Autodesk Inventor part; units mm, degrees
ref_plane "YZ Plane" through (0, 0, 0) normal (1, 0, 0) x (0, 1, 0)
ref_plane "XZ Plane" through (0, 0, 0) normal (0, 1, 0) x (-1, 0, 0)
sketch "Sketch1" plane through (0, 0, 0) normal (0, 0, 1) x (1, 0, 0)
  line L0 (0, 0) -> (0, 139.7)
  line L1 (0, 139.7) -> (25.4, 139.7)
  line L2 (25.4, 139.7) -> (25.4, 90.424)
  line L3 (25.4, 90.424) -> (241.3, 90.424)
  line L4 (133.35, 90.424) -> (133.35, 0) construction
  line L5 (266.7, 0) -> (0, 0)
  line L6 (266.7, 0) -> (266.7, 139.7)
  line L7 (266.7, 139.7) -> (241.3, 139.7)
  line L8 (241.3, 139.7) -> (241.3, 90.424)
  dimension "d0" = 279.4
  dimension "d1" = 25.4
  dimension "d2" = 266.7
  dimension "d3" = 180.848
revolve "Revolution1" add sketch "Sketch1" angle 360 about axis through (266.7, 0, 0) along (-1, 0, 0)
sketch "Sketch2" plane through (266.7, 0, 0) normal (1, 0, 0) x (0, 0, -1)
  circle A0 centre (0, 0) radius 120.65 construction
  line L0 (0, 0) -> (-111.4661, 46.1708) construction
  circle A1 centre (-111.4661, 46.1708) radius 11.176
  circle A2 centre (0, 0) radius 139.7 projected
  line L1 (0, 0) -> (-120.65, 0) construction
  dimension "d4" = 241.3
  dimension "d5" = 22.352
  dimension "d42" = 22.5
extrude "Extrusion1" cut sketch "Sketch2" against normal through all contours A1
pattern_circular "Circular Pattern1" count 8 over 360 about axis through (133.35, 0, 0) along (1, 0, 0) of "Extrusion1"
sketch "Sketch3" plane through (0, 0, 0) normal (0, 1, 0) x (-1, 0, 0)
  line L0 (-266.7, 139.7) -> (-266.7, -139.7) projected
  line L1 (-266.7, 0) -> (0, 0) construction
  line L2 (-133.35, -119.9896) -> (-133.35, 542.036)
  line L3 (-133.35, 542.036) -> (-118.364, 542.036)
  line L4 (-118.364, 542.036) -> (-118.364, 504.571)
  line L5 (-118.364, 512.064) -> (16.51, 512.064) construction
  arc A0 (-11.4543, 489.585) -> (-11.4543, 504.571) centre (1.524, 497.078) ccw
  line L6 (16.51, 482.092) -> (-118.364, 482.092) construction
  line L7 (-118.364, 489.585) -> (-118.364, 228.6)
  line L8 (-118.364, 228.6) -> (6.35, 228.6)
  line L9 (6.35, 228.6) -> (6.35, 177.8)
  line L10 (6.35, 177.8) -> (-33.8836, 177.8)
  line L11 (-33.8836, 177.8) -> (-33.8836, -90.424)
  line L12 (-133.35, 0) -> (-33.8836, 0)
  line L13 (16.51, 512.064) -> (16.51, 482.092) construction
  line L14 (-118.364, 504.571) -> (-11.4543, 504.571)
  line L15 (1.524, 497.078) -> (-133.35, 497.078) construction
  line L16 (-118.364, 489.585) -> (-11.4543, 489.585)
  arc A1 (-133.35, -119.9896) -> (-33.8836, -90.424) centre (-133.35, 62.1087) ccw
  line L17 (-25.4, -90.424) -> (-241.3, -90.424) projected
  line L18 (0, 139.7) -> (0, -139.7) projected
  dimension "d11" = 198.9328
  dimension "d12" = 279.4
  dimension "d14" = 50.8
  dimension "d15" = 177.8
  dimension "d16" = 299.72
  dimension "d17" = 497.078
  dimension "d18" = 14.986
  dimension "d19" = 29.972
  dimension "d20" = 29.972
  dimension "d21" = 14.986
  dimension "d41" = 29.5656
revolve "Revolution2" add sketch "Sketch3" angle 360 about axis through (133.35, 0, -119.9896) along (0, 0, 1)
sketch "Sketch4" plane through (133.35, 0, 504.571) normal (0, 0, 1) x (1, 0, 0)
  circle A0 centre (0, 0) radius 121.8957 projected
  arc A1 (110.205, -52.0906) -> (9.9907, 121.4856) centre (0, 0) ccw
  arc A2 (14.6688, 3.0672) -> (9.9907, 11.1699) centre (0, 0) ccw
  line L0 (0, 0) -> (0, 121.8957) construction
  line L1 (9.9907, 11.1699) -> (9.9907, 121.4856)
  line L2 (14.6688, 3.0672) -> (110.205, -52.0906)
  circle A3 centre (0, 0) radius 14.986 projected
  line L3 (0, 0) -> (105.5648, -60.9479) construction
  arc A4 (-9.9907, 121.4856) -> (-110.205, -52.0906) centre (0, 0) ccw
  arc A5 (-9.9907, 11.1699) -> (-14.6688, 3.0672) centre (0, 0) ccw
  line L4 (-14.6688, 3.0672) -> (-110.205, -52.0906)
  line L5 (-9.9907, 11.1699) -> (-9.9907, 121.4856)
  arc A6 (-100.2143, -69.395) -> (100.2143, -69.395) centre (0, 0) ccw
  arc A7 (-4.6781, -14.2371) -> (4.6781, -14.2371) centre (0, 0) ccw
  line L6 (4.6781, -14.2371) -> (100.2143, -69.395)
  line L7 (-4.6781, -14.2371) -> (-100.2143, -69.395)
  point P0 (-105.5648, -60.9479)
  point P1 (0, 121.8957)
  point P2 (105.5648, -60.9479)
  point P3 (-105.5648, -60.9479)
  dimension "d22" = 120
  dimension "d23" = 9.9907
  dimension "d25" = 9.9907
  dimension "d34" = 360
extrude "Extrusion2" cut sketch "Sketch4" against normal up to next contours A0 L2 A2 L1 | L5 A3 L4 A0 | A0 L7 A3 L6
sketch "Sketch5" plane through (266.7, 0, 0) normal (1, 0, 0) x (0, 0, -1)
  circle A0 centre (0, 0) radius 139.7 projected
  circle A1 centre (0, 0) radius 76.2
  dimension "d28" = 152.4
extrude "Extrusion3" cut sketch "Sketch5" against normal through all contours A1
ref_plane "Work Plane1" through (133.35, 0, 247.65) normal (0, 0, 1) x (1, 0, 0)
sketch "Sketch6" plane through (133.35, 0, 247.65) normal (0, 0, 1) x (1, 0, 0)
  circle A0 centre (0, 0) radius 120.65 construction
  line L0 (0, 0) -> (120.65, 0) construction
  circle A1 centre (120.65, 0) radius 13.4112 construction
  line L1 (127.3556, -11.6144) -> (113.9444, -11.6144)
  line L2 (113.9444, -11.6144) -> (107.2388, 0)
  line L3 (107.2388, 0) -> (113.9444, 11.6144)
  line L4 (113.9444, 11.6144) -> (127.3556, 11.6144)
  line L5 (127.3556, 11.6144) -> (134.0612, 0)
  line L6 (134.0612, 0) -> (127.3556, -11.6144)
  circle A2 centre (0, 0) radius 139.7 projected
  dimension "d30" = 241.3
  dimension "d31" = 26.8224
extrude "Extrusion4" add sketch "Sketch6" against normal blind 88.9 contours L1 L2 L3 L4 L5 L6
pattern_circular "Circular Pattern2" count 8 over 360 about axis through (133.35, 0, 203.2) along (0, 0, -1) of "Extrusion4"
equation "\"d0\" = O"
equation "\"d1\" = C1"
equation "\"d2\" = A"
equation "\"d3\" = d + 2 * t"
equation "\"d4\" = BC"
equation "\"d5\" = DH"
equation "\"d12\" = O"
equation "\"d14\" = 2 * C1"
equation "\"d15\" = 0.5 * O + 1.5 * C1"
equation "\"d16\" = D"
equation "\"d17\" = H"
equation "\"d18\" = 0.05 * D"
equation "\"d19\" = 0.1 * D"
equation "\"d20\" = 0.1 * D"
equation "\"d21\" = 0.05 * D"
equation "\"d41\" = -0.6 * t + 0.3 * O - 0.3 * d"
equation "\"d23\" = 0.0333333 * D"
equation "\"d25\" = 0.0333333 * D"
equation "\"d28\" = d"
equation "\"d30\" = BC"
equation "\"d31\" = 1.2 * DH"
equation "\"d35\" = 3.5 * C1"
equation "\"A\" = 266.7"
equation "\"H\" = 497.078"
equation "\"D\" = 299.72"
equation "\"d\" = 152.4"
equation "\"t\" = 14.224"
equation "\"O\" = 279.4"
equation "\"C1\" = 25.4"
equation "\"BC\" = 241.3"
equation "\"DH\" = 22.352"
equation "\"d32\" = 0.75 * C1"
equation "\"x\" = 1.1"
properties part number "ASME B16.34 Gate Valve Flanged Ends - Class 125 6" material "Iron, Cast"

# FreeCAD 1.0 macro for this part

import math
import FreeCAD as App
import Part
import Sketcher
from FreeCAD import Vector
Q = App.Units.Quantity


def add_polygon(sketch, points):
    """Adds a closed chain of lines whose ends are joined by coincident constraints."""
    first, n = sketch.GeometryCount, len(points)
    for a, b in zip(points, points[1:] + points[:1]):
        sketch.addGeometry(Part.LineSegment(App.Vector(*a, 0), App.Vector(*b, 0)), False)
    for i in range(n):
        sketch.addConstraint(Sketcher.Constraint("Coincident", first + i, 2, first + (i + 1) % n, 1))

doc = App.newDocument("Part")
body = doc.addObject("PartDesign::Body", "Body")

sketch1 = body.newObject("Sketcher::SketchObject", "Sketch")
sketch1.AttachmentSupport = (doc.getObject("XY_Plane"), [""])
sketch1.MapMode = "FlatFace"
add_polygon(sketch1, [(0, 140), (0, 0), (267, 0), (267, 140), (241, 140), (241, 90), (25, 90), (25, 140)])
sketch1.addConstraint([
    Sketcher.Constraint("Vertical", 0),
    Sketcher.Constraint("Horizontal", 1),
    Sketcher.Constraint("Vertical", 2),
    Sketcher.Constraint("Horizontal", 3),
    Sketcher.Constraint("Vertical", 4),
    Sketcher.Constraint("Horizontal", 5),
    Sketcher.Constraint("Vertical", 6),
    Sketcher.Constraint("Horizontal", 7),
    Sketcher.Constraint("Coincident", 0, 2, -1, 1),
    Sketcher.Constraint("Horizontal", 3, 2, 6, 2),
    Sketcher.Constraint("Equal", 3, 7),
    Sketcher.Constraint("DistanceX", 3, 2, 3, 1, Q("1 in")),
    Sketcher.Constraint("DistanceX", 1, 1, 1, 2, Q("10.5 in")),
    Sketcher.Constraint("DistanceY", 0, 2, 0, 1, Q("5.5 in")),
    Sketcher.Constraint("DistanceY", 4, 2, 4, 1, Q("1.94 in")),
])
revolution = body.newObject("PartDesign::Revolution", "Revolution")
revolution.Profile = sketch1
revolution.ReferenceAxis = (sketch1, ["H_Axis"])
revolution.Angle = 360

sketch2 = body.newObject("Sketcher::SketchObject", "Sketch001")
sketch2.AttachmentSupport = (doc.getObject("YZ_Plane"), [""])
sketch2.MapMode = "FlatFace"
sketch2.AttachmentOffset = App.Placement(Vector(0, 0, 10.5 * 25.4), App.Rotation())
sketch2.addGeometry(Part.Circle(Vector(46, 111, 0), Vector(0, 0, 1), 11), False)
sketch2.addConstraint([
    Sketcher.Constraint("Diameter", 0, Q("0.88 in")),
    Sketcher.Constraint("DistanceX", -1, 1, 0, 3, Q("46.1708 mm")),
    Sketcher.Constraint("DistanceY", -1, 1, 0, 3, Q("111.466 mm")),
])
pocket1 = body.newObject("PartDesign::Pocket", "Pocket")
pocket1.Profile = sketch2
pocket1.Type = "ThroughAll"
doc.recompute()

polarpattern = body.newObject("PartDesign::PolarPattern", "PolarPattern")
polarpattern.Originals = [pocket1]
polarpattern.Axis = (doc.getObject("X_Axis"), [""])
polarpattern.Angle = 360
polarpattern.Occurrences = 8
body.Tip = polarpattern

sketch3 = body.newObject("Sketcher::SketchObject", "Sketch002")
sketch3.AttachmentSupport = (doc.getObject("XZ_Plane"), [""])
sketch3.MapMode = "FlatFace"
sketch3.addGeometry([
    Part.LineSegment(Vector(34, -90, 0), Vector(34, 178, 0)),
    Part.LineSegment(Vector(34, 178, 0), Vector(-6, 178, 0)),
    Part.LineSegment(Vector(-6, 178, 0), Vector(-6, 229, 0)),
    Part.LineSegment(Vector(-6, 229, 0), Vector(118, 229, 0)),
    Part.LineSegment(Vector(118, 229, 0), Vector(118, 490, 0)),
    Part.LineSegment(Vector(118, 490, 0), Vector(11, 490, 0)),
    Part.ArcOfCircle(Part.Circle(Vector(-2, 497, 0), Vector(0, 0, 1), 15), math.radians(30), math.radians(330)),
    Part.LineSegment(Vector(11, 505, 0), Vector(118, 505, 0)),
    Part.LineSegment(Vector(118, 505, 0), Vector(118, 542, 0)),
    Part.LineSegment(Vector(118, 542, 0), Vector(133, 542, 0)),
    Part.LineSegment(Vector(133, 542, 0), Vector(133, -120, 0)),
    Part.ArcOfCircle(Part.Circle(Vector(133, 62, 0), Vector(0, 0, 1), 182), math.radians(-123), math.radians(-90)),
], False)
sketch3.addGeometry(Part.LineSegment(Vector(133, -120, 0), Vector(133, 542, 0)), True)
sketch3.addConstraint([
    Sketcher.Constraint("Coincident", 0, 2, 1, 1),
    Sketcher.Constraint("Coincident", 1, 2, 2, 1),
    Sketcher.Constraint("Coincident", 2, 2, 3, 1),
    Sketcher.Constraint("Coincident", 3, 2, 4, 1),
    Sketcher.Constraint("Coincident", 4, 2, 5, 1),
    Sketcher.Constraint("Coincident", 5, 2, 6, 2),
    Sketcher.Constraint("Coincident", 6, 1, 7, 1),
    Sketcher.Constraint("Coincident", 7, 2, 8, 1),
    Sketcher.Constraint("Coincident", 8, 2, 9, 1),
    Sketcher.Constraint("Coincident", 9, 2, 10, 1),
    Sketcher.Constraint("Coincident", 10, 2, 11, 2),
    Sketcher.Constraint("Coincident", 11, 1, 0, 1),
    Sketcher.Constraint("Vertical", 0),
    Sketcher.Constraint("Horizontal", 1),
    Sketcher.Constraint("Vertical", 2),
    Sketcher.Constraint("Horizontal", 3),
    Sketcher.Constraint("Vertical", 4),
    Sketcher.Constraint("Horizontal", 5),
    Sketcher.Constraint("Horizontal", 7),
    Sketcher.Constraint("Vertical", 8),
    Sketcher.Constraint("Horizontal", 9),
    Sketcher.Constraint("Vertical", 10),
    Sketcher.Constraint("Vertical", 12),
    Sketcher.Constraint("Coincident", 12, 1, 10, 2),
    Sketcher.Constraint("Horizontal", 8, 2, 12, 2),
    Sketcher.Constraint("Vertical", 5, 2, 6, 1),
    Sketcher.Constraint("Vertical", 4, 2, 7, 2),
    Sketcher.Constraint("Vertical", 11, 3, 9, 2),
    Sketcher.Constraint("DistanceY", 2, 1, 2, 2, Q("2 in")),
    Sketcher.Constraint("Radius", 6, Q("0.59 in")),
    Sketcher.Constraint("DistanceY", -1, 1, 0, 2, Q("7 in")),
    Sketcher.Constraint("DistanceX", 9, 1, 9, 2, Q("0.59 in")),
    Sketcher.Constraint("DistanceY", -1, 1, 6, 3, Q("19.57 in")),
    Sketcher.Constraint("DistanceY", 5, 2, 6, 1, Q("0.59 in")),
    Sketcher.Constraint("DistanceY", 10, 2, 11, 1, Q("1.164 in")),
    Sketcher.Constraint("DistanceX", 3, 1, 3, 2, Q("4.91 in")),
    Sketcher.Constraint("DistanceY", 0, 1, 0, 2, Q("10.56 in")),
    Sketcher.Constraint("DistanceX", 1, 2, 1, 1, Q("1.584 in")),
    Sketcher.Constraint("DistanceY", 8, 1, 8, 2, Q("1.475 in")),
    Sketcher.Constraint("DistanceX", 6, 3, -1, 1, Q("0.06 in")),
    Sketcher.Constraint("DistanceX", -1, 1, 11, 3, Q("5.25 in")),
])
revolution2 = body.newObject("PartDesign::Revolution", "Revolution001")
revolution2.Profile = sketch3
revolution2.ReferenceAxis = (sketch3, ["Axis0"])
revolution2.Angle = 360

sketch4 = body.newObject("Sketcher::SketchObject", "Sketch003")
sketch4.AttachmentSupport = (doc.getObject("XY_Plane"), [""])
sketch4.MapMode = "FlatFace"
sketch4.AttachmentOffset = App.Placement(Vector(0, 0, 19.865 * 25.4), App.Rotation())
sketch4.addGeometry([
    Part.ArcOfCircle(Part.Circle(Vector(133, 0, 0), Vector(0, 0, 1), 122), math.radians(-25), math.radians(85)),
    Part.LineSegment(Vector(143, 121, 0), Vector(143, 11, 0)),
    Part.ArcOfCircle(Part.Circle(Vector(133, 0, 0), Vector(0, 0, 1), 15), math.radians(12), math.radians(48)),
    Part.LineSegment(Vector(148, 3, 0), Vector(244, -52, 0)),
    Part.LineSegment(Vector(123, 11, 0), Vector(123, 121, 0)),
    Part.ArcOfCircle(Part.Circle(Vector(133, 0, 0), Vector(0, 0, 1), 122), math.radians(95), math.radians(205)),
    Part.LineSegment(Vector(23, -52, 0), Vector(119, 3, 0)),
    Part.ArcOfCircle(Part.Circle(Vector(133, 0, 0), Vector(0, 0, 1), 15), math.radians(132), math.radians(168)),
    Part.ArcOfCircle(Part.Circle(Vector(133, 0, 0), Vector(0, 0, 1), 122), math.radians(-145), math.radians(-35)),
    Part.LineSegment(Vector(234, -69, 0), Vector(138, -14, 0)),
    Part.ArcOfCircle(Part.Circle(Vector(133, 0, 0), Vector(0, 0, 1), 15), math.radians(-108), math.radians(-72)),
    Part.LineSegment(Vector(129, -14, 0), Vector(33, -69, 0)),
], False)
sketch4.addConstraint([
    Sketcher.Constraint("Coincident", 0, 2, 1, 1),
    Sketcher.Constraint("Coincident", 1, 2, 2, 2),
    Sketcher.Constraint("Coincident", 2, 1, 3, 1),
    Sketcher.Constraint("Coincident", 3, 2, 0, 1),
    Sketcher.Constraint("Coincident", 4, 2, 5, 1),
    Sketcher.Constraint("Coincident", 5, 2, 6, 1),
    Sketcher.Constraint("Coincident", 6, 2, 7, 2),
    Sketcher.Constraint("Coincident", 7, 1, 4, 1),
    Sketcher.Constraint("Coincident", 8, 2, 9, 1),
    Sketcher.Constraint("Coincident", 9, 2, 10, 2),
    Sketcher.Constraint("Coincident", 10, 1, 11, 1),
    Sketcher.Constraint("Coincident", 11, 2, 8, 1),
    Sketcher.Constraint("Vertical", 1),
    Sketcher.Constraint("Vertical", 4),
    Sketcher.Constraint("Coincident", 2, 3, 0, 3),
    Sketcher.Constraint("Coincident", 5, 3, 0, 3),
    Sketcher.Constraint("Coincident", 7, 3, 0, 3),
    Sketcher.Constraint("Coincident", 8, 3, 0, 3),
    Sketcher.Constraint("Coincident", 10, 3, 0, 3),
    Sketcher.Constraint("Equal", 0, 5),
    Sketcher.Constraint("Equal", 2, 7),
    Sketcher.Constraint("Equal", 5, 8),
    Sketcher.Constraint("Equal", 7, 10),
    Sketcher.Constraint("PointOnObject", 0, 3, -1),
    Sketcher.Constraint("Parallel", 3, 9),
    Sketcher.Constraint("Parallel", 6, 11),
    Sketcher.Constraint("Horizontal", 0, 2, 4, 2),
    Sketcher.Constraint("Horizontal", 3, 2, 5, 2),
    Sketcher.Constraint("Horizontal", 2, 1, 6, 2),
    Sketcher.Constraint("Horizontal", 9, 2, 10, 1),
    Sketcher.Constraint("Equal", 6, 9),
    Sketcher.Constraint("Radius", 2, Q("0.59 in")),
    Sketcher.Constraint("Angle", 3, Q("-30 deg")),
    Sketcher.Constraint("DistanceX", -1, 1, 0, 3, Q("5.25 in")),
    Sketcher.Constraint("Radius", 0, Q("121.8957 mm")),
    Sketcher.Constraint("DistanceX", 0, 3, 0, 2, Q("9.9907 mm")),
    Sketcher.Constraint("DistanceX", 8, 2, 3, 2, Q("9.9907 mm")),
])
pocket2 = body.newObject("PartDesign::Pocket", "Pocket001")
pocket2.Profile = sketch4
pocket2.Length = Q("0.59 in")

sketch5 = body.newObject("Sketcher::SketchObject", "Sketch004")
sketch5.AttachmentSupport = (doc.getObject("YZ_Plane"), [""])
sketch5.MapMode = "FlatFace"
sketch5.AttachmentOffset = App.Placement(Vector(0, 0, 10.5 * 25.4), App.Rotation())
sketch5.addGeometry(Part.Circle(Vector(0, 0, 0), Vector(0, 0, 1), 76), False)
sketch5.addConstraint([
    Sketcher.Constraint("Coincident", 0, 3, -1, 1),
    Sketcher.Constraint("Diameter", 0, Q("6 in")),
])
pocket3 = body.newObject("PartDesign::Pocket", "Pocket002")
pocket3.Profile = sketch5
pocket3.Type = "ThroughAll"

sketch6 = body.newObject("Sketcher::SketchObject", "Sketch005")
sketch6.AttachmentSupport = (doc.getObject("XY_Plane"), [""])
sketch6.MapMode = "FlatFace"
sketch6.AttachmentOffset = App.Placement(Vector(0, 0, 9.75 * 25.4), App.Rotation())
add_polygon(sketch6, [(247, -12), (261, -12), (267, 0), (261, 12), (247, 12), (241, 0)])
sketch6.addConstraint([
    Sketcher.Constraint("Horizontal", 0),
    Sketcher.Constraint("Horizontal", 3),
    Sketcher.Constraint("Symmetric", 0, 2, 2, 2, -1),
    Sketcher.Constraint("PointOnObject", 1, 2, -1),
    Sketcher.Constraint("PointOnObject", 4, 2, -1),
    Sketcher.Constraint("Parallel", 1, 4),
    Sketcher.Constraint("Parallel", 2, 5),
    Sketcher.Constraint("Angle", 1, Q("60 deg")),
    Sketcher.Constraint("DistanceX", 4, 2, 1, 2, Q("1.056 in")),
    Sketcher.Constraint("DistanceX", 0, 1, 0, 2, Q("0.528 in")),
    Sketcher.Constraint("DistanceX", -1, 1, 0, 2, Q("10.264 in")),
])
pad1 = body.newObject("PartDesign::Pad", "Pad")
pad1.Profile = sketch6
pad1.Length = Q("3.5 in")
pad1.Reversed = True
doc.recompute()

datumline = body.newObject("PartDesign::Line", "DatumLine")
datumline.Placement = App.Placement(Vector(133.35, 0, 0), App.Rotation(Vector(0, 0, 1), Vector(0, 0, 1)))
polarpattern2 = body.newObject("PartDesign::PolarPattern", "PolarPattern001")
polarpattern2.Originals = [pad1]
polarpattern2.Axis = (datumline, [""])
polarpattern2.Angle = 360
polarpattern2.Occurrences = 8
body.Tip = polarpattern2

doc.recompute()
